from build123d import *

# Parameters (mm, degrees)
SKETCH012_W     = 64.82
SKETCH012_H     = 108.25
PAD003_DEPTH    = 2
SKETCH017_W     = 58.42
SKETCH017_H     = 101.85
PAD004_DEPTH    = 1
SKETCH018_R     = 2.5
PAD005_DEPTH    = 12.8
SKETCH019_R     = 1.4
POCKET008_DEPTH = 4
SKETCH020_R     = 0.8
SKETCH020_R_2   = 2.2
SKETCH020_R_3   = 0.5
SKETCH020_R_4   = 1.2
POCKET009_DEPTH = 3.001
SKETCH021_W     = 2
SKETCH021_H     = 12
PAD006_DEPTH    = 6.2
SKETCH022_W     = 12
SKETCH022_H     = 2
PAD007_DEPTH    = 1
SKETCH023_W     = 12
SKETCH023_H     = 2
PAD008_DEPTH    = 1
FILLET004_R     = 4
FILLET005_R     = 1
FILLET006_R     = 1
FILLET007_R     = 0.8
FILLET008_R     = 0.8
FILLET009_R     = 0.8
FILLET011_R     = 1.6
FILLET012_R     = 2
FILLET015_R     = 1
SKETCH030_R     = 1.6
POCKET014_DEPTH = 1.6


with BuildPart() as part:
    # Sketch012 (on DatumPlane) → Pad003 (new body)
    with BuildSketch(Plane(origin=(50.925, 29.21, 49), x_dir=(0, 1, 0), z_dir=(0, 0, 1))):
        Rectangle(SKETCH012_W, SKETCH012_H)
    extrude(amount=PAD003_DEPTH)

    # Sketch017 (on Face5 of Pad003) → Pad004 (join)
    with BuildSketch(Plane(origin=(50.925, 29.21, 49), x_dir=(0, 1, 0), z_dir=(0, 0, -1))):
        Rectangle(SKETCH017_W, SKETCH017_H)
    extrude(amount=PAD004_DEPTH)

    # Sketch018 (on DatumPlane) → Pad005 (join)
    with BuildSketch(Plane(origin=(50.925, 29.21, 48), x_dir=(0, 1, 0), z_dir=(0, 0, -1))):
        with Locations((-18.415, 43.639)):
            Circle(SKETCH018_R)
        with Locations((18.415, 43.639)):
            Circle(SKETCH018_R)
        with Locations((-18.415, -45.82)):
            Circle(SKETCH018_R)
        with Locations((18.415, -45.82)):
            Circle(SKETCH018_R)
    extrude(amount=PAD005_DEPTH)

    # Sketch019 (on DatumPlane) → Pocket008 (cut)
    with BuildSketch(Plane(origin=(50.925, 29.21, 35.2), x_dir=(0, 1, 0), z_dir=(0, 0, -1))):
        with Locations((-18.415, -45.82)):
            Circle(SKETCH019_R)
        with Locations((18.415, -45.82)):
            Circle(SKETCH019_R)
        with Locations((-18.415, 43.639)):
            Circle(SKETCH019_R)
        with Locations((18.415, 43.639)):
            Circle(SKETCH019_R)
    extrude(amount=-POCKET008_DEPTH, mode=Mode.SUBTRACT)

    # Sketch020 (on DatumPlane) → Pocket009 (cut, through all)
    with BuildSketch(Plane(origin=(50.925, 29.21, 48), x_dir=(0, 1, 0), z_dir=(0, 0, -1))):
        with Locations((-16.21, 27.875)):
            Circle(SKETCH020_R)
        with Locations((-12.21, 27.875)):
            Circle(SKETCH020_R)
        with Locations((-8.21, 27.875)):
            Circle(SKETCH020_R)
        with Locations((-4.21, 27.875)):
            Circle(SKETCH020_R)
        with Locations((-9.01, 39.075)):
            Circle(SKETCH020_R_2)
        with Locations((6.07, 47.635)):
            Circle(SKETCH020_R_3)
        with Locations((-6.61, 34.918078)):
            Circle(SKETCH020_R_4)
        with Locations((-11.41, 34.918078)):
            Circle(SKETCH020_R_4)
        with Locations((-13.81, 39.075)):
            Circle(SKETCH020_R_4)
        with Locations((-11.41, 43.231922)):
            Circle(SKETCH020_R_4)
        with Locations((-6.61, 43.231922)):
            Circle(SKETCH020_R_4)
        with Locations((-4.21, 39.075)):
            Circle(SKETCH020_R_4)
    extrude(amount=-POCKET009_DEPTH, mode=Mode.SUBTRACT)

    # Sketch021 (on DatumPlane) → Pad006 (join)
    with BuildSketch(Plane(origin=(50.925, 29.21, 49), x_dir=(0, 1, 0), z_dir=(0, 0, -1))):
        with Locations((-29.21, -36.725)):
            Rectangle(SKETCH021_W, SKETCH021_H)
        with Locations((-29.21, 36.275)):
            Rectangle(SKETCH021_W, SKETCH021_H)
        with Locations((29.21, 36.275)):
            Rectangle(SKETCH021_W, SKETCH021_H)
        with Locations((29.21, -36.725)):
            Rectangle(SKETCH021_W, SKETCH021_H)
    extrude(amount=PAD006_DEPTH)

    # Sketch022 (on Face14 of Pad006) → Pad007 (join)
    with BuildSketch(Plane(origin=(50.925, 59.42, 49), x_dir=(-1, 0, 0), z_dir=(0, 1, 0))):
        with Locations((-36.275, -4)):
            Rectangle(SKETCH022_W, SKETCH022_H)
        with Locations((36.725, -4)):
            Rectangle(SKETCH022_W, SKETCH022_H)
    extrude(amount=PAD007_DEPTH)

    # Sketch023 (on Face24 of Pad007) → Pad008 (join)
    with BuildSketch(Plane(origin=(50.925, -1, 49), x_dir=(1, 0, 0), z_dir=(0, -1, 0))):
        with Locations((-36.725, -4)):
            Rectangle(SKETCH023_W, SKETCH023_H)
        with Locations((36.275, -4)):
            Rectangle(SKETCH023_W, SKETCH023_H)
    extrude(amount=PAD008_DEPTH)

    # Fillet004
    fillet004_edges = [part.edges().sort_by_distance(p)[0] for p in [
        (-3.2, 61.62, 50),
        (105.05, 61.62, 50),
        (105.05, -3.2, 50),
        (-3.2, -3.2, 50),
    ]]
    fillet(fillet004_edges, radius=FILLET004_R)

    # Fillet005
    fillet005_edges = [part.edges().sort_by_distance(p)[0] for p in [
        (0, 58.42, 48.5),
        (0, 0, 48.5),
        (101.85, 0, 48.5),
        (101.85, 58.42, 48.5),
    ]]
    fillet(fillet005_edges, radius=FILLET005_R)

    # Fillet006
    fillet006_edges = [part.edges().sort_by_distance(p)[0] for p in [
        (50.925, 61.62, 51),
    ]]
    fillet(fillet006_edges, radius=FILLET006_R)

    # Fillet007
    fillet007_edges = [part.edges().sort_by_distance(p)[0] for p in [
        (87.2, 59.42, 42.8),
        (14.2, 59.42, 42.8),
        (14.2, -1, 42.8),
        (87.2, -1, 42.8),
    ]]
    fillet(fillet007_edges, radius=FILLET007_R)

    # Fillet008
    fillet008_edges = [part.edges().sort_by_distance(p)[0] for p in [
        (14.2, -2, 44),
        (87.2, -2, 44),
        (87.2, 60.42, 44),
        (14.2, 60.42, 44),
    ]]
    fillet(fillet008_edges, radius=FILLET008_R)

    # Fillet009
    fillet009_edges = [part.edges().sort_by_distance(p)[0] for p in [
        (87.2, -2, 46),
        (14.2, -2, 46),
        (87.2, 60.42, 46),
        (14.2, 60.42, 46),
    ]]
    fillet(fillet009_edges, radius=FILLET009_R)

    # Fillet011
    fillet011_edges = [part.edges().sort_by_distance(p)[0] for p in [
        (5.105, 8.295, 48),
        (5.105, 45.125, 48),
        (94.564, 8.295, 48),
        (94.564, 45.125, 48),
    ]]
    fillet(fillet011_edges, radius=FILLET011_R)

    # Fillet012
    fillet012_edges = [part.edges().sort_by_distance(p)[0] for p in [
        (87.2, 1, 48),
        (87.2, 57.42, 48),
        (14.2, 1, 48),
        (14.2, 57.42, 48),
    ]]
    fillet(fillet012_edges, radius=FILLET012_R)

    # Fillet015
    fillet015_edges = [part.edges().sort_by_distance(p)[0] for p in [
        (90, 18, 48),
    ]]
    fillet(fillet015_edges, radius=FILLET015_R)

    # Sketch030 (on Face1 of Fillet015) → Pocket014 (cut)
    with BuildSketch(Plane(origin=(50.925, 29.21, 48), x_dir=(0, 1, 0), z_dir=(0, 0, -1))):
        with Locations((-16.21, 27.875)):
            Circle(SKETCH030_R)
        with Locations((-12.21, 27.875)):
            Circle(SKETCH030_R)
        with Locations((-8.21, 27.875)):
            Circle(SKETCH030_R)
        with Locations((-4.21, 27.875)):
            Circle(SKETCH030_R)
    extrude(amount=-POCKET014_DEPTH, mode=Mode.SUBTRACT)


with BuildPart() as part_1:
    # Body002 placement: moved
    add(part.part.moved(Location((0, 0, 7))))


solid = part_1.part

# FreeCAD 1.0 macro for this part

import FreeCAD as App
import Part
import Sketcher


def edges_at(feature, points):
    """Names of the edges that pass closest to the given points."""
    edges = feature.Shape.Edges
    near = lambda p: min(range(len(edges)), key=lambda i: edges[i].distToShape(Part.Vertex(*p))[0])
    return sorted({f"Edge{near(p) + 1}" for p in points})

doc = App.newDocument("Part")
body = doc.addObject("PartDesign::Body", "Body")

# Sketch on XY plane
sketch1 = doc.addObject("Sketcher::SketchObject", "Sketch")
body.addObject(sketch1)
sketch1.AttachmentSupport = (doc.XY_Plane, [""])
sketch1.MapMode = "FlatFace"
sketch1.AttachmentOffset = App.Placement(App.Vector(0, 0, 49), App.Rotation())
sketch1.addGeometry([
    Part.LineSegment(App.Vector(-3, -3, 0), App.Vector(105, -3, 0)),
    Part.LineSegment(App.Vector(105, -3, 0), App.Vector(105, 62, 0)),
    Part.LineSegment(App.Vector(105, 62, 0), App.Vector(-3, 62, 0)),
    Part.LineSegment(App.Vector(-3, 62, 0), App.Vector(-3, -3, 0)),
], False)
sketch1.addConstraint([
    Sketcher.Constraint("Coincident", 0, 2, 1, 1),
    Sketcher.Constraint("Coincident", 1, 2, 2, 1),
    Sketcher.Constraint("Coincident", 2, 2, 3, 1),
    Sketcher.Constraint("Coincident", 3, 2, 0, 1),
    Sketcher.Constraint("Horizontal", 0),
    Sketcher.Constraint("Vertical", 1),
    Sketcher.Constraint("Horizontal", 2),
    Sketcher.Constraint("Vertical", 3),
    Sketcher.Constraint("DistanceX", 0, 1, 0, 2, 108.25),
    Sketcher.Constraint("DistanceY", 1, 1, 1, 2, 64.82),
    Sketcher.Constraint("DistanceY", 0, 2, -1, 1, 3.2),
    Sketcher.Constraint("DistanceX", 2, 2, -1, 1, 3.2),
])
pad1 = doc.addObject("PartDesign::Pad", "Pad")
body.addObject(pad1)
pad1.Profile = sketch1
pad1.Length = 2

# Sketch on XY plane
sketch2 = doc.addObject("Sketcher::SketchObject", "Sketch001")
body.addObject(sketch2)
sketch2.AttachmentSupport = (doc.XY_Plane, [""])
sketch2.MapMode = "FlatFace"
sketch2.AttachmentOffset = App.Placement(App.Vector(0, 0, 49), App.Rotation())
sketch2.addGeometry([
    Part.LineSegment(App.Vector(102, 0, 0), App.Vector(0, 0, 0)),
    Part.LineSegment(App.Vector(0, 0, 0), App.Vector(0, 58, 0)),
    Part.LineSegment(App.Vector(0, 58, 0), App.Vector(102, 58, 0)),
    Part.LineSegment(App.Vector(102, 58, 0), App.Vector(102, 0, 0)),
], False)
sketch2.addConstraint([
    Sketcher.Constraint("Coincident", 0, 2, 1, 1),
    Sketcher.Constraint("Coincident", 1, 2, 2, 1),
    Sketcher.Constraint("Coincident", 2, 2, 3, 1),
    Sketcher.Constraint("Coincident", 3, 2, 0, 1),
    Sketcher.Constraint("Horizontal", 0),
    Sketcher.Constraint("Vertical", 1),
    Sketcher.Constraint("Horizontal", 2),
    Sketcher.Constraint("Vertical", 3),
    Sketcher.Constraint("Coincident", 0, 2, -1, 1),
    Sketcher.Constraint("DistanceX", 0, 2, 0, 1, 101.85),
    Sketcher.Constraint("DistanceY", 1, 1, 1, 2, 58.42),
])
pad2 = doc.addObject("PartDesign::Pad", "Pad001")
body.addObject(pad2)
pad2.Profile = sketch2
pad2.Length = 1
pad2.Reversed = True

# Sketch on XY plane
sketch3 = doc.addObject("Sketcher::SketchObject", "Sketch002")
body.addObject(sketch3)
sketch3.AttachmentSupport = (doc.XY_Plane, [""])
sketch3.MapMode = "FlatFace"
sketch3.AttachmentOffset = App.Placement(App.Vector(0, 0, 48), App.Rotation())
sketch3.addGeometry([
    Part.Circle(App.Vector(94.6, 10.8, 0), App.Vector(0, 0, 1), 2.5),
    Part.Circle(App.Vector(94.6, 47.6, 0), App.Vector(0, 0, 1), 2.5),
    Part.Circle(App.Vector(5.1, 10.8, 0), App.Vector(0, 0, 1), 2.5),
    Part.Circle(App.Vector(5.1, 47.6, 0), App.Vector(0, 0, 1), 2.5),
], False)
sketch3.addConstraint([
    Sketcher.Constraint("Equal", 0, 1),
    Sketcher.Constraint("Equal", 1, 2),
    Sketcher.Constraint("Equal", 2, 3),
    Sketcher.Constraint("Horizontal", 0, 3, 2, 3),
    Sketcher.Constraint("Horizontal", 1, 3, 3, 3),
    Sketcher.Constraint("Vertical", 0, 3, 1, 3),
    Sketcher.Constraint("Vertical", 2, 3, 3, 3),
    Sketcher.Constraint("Diameter", 0, 5.0),
    Sketcher.Constraint("DistanceY", 0, 3, 1, 3, 36.83),
    Sketcher.Constraint("DistanceX", -1, 1, 0, 3, 94.564),
    Sketcher.Constraint("DistanceY", -1, 1, 0, 3, 10.795),
    Sketcher.Constraint("DistanceX", -1, 1, 2, 3, 5.105),
])
pad3 = doc.addObject("PartDesign::Pad", "Pad002")
body.addObject(pad3)
pad3.Profile = sketch3
pad3.Length = 12.8
pad3.Reversed = True

# Sketch on XY plane
sketch4 = doc.addObject("Sketcher::SketchObject", "Sketch003")
body.addObject(sketch4)
sketch4.AttachmentSupport = (doc.XY_Plane, [""])
sketch4.MapMode = "FlatFace"
sketch4.AttachmentOffset = App.Placement(App.Vector(0, 0, 35.2), App.Rotation())
sketch4.addGeometry([
    Part.Circle(App.Vector(5.1, 10.8, 0), App.Vector(0, 0, 1), 1.4),
    Part.Circle(App.Vector(5.1, 47.6, 0), App.Vector(0, 0, 1), 1.4),
    Part.Circle(App.Vector(94.6, 10.8, 0), App.Vector(0, 0, 1), 1.4),
    Part.Circle(App.Vector(94.6, 47.6, 0), App.Vector(0, 0, 1), 1.4),
], False)
sketch4.addConstraint([
    Sketcher.Constraint("Equal", 0, 1),
    Sketcher.Constraint("Equal", 1, 2),
    Sketcher.Constraint("Equal", 2, 3),
    Sketcher.Constraint("Horizontal", 0, 3, 2, 3),
    Sketcher.Constraint("Horizontal", 1, 3, 3, 3),
    Sketcher.Constraint("Vertical", 0, 3, 1, 3),
    Sketcher.Constraint("Vertical", 2, 3, 3, 3),
    Sketcher.Constraint("Diameter", 0, 2.8),
    Sketcher.Constraint("DistanceY", 0, 3, 1, 3, 36.83),
    Sketcher.Constraint("DistanceX", -1, 1, 0, 3, 5.105),
    Sketcher.Constraint("DistanceY", -1, 1, 0, 3, 10.795),
    Sketcher.Constraint("DistanceX", -1, 1, 2, 3, 94.564),
])
pocket1 = doc.addObject("PartDesign::Pocket", "Pocket")
body.addObject(pocket1)
pocket1.Profile = sketch4
pocket1.Length = 4
pocket1.Reversed = True

# Sketch on XY plane
sketch5 = doc.addObject("Sketcher::SketchObject", "Sketch004")
body.addObject(sketch5)
sketch5.AttachmentSupport = (doc.XY_Plane, [""])
sketch5.MapMode = "FlatFace"
sketch5.AttachmentOffset = App.Placement(App.Vector(0, 0, 48), App.Rotation())
sketch5.addGeometry([
    Part.Circle(App.Vector(78.8, 13, 0), App.Vector(0, 0, 1), 0.8),  # 0
    Part.Circle(App.Vector(78.8, 17, 0), App.Vector(0, 0, 1), 0.8),  # 1
    Part.Circle(App.Vector(78.8, 21, 0), App.Vector(0, 0, 1), 0.8),  # 2
    Part.Circle(App.Vector(78.8, 25, 0), App.Vector(0, 0, 1), 0.8),  # 3
    Part.Circle(App.Vector(90, 20.2, 0), App.Vector(0, 0, 1), 2.2),  # 4
    Part.Circle(App.Vector(98.6, 35.3, 0), App.Vector(0, 0, 1), 0.5),  # 5
    Part.Circle(App.Vector(85.8, 22.6, 0), App.Vector(0, 0, 1), 1.2),  # 6
    Part.Circle(App.Vector(85.8, 17.8, 0), App.Vector(0, 0, 1), 1.2),  # 7
    Part.Circle(App.Vector(90, 15.4, 0), App.Vector(0, 0, 1), 1.2),  # 8
    Part.Circle(App.Vector(94.2, 17.8, 0), App.Vector(0, 0, 1), 1.2),  # 9
    Part.Circle(App.Vector(94.2, 22.6, 0), App.Vector(0, 0, 1), 1.2),  # 10
    Part.Circle(App.Vector(90, 25, 0), App.Vector(0, 0, 1), 1.2),  # 11
], False)
sketch5.addConstraint([
    Sketcher.Constraint("Equal", 0, 1),
    Sketcher.Constraint("Equal", 1, 2),
    Sketcher.Constraint("Equal", 2, 3),
    Sketcher.Constraint("Equal", 6, 7),
    Sketcher.Constraint("Equal", 7, 8),
    Sketcher.Constraint("Equal", 8, 9),
    Sketcher.Constraint("Equal", 9, 10),
    Sketcher.Constraint("Equal", 10, 11),
    Sketcher.Constraint("Horizontal", 7, 3, 9, 3),
    Sketcher.Constraint("Horizontal", 6, 3, 10, 3),
    Sketcher.Constraint("Horizontal", 3, 3, 11, 3),
    Sketcher.Constraint("Vertical", 0, 3, 1, 3),
    Sketcher.Constraint("Vertical", 1, 3, 2, 3),
    Sketcher.Constraint("Vertical", 2, 3, 3, 3),
    Sketcher.Constraint("Vertical", 6, 3, 7, 3),
    Sketcher.Constraint("Vertical", 4, 3, 8, 3),
    Sketcher.Constraint("Vertical", 9, 3, 10, 3),
    Sketcher.Constraint("Vertical", 8, 3, 11, 3),
    Sketcher.Constraint("Diameter", 5, 1.0),
    Sketcher.Constraint("Diameter", 0, 1.6),
    Sketcher.Constraint("Diameter", 4, 4.4),
    Sketcher.Constraint("Diameter", 6, 2.4),
    Sketcher.Constraint("DistanceY", -1, 1, 0, 3, 13.0),
    Sketcher.Constraint("DistanceY", -1, 1, 1, 3, 17.0),
    Sketcher.Constraint("DistanceY", -1, 1, 2, 3, 21.0),
    Sketcher.Constraint("DistanceY", -1, 1, 3, 3, 25.0),
    Sketcher.Constraint("DistanceX", -1, 1, 4, 3, 90.0),
    Sketcher.Constraint("DistanceX", -1, 1, 0, 3, 78.8),
    Sketcher.Constraint("DistanceY", -1, 1, 4, 3, 20.2),
    Sketcher.Constraint("DistanceY", -1, 1, 6, 3, 22.6),
    Sketcher.Constraint("DistanceY", -1, 1, 7, 3, 17.8),
    Sketcher.Constraint("DistanceY", -1, 1, 8, 3, 15.4),
    Sketcher.Constraint("DistanceX", -1, 1, 5, 3, 98.56),
    Sketcher.Constraint("DistanceY", -1, 1, 5, 3, 35.28),
    Sketcher.Constraint("DistanceX", -1, 1, 6, 3, 85.843078),
    Sketcher.Constraint("DistanceX", -1, 1, 9, 3, 94.156922),
])
pocket2 = doc.addObject("PartDesign::Pocket", "Pocket001")
body.addObject(pocket2)
pocket2.Profile = sketch5
pocket2.Type = "ThroughAll"
pocket2.Reversed = True

# Sketch on XY plane
sketch6 = doc.addObject("Sketcher::SketchObject", "Sketch005")
body.addObject(sketch6)
sketch6.AttachmentSupport = (doc.XY_Plane, [""])
sketch6.MapMode = "FlatFace"
sketch6.AttachmentOffset = App.Placement(App.Vector(0, 0, 49), App.Rotation())
sketch6.addGeometry([
    Part.LineSegment(App.Vector(20.2, -1, 0), App.Vector(8.2, -1, 0)),  # 0
    Part.LineSegment(App.Vector(8.2, -1, 0), App.Vector(8.2, 1, 0)),  # 1
    Part.LineSegment(App.Vector(8.2, 1, 0), App.Vector(20.2, 1, 0)),  # 2
    Part.LineSegment(App.Vector(20.2, 1, 0), App.Vector(20.2, -1, 0)),  # 3
    Part.LineSegment(App.Vector(93.2, -1, 0), App.Vector(81.2, -1, 0)),  # 4
    Part.LineSegment(App.Vector(81.2, -1, 0), App.Vector(81.2, 1, 0)),  # 5
    Part.LineSegment(App.Vector(81.2, 1, 0), App.Vector(93.2, 1, 0)),  # 6
    Part.LineSegment(App.Vector(93.2, 1, 0), App.Vector(93.2, -1, 0)),  # 7
    Part.LineSegment(App.Vector(93.2, 57.4, 0), App.Vector(81.2, 57.4, 0)),  # 8
    Part.LineSegment(App.Vector(81.2, 57.4, 0), App.Vector(81.2, 59.4, 0)),  # 9
    Part.LineSegment(App.Vector(81.2, 59.4, 0), App.Vector(93.2, 59.4, 0)),  # 10
    Part.LineSegment(App.Vector(93.2, 59.4, 0), App.Vector(93.2, 57.4, 0)),  # 11
    Part.LineSegment(App.Vector(20.2, 57.4, 0), App.Vector(8.2, 57.4, 0)),  # 12
    Part.LineSegment(App.Vector(8.2, 57.4, 0), App.Vector(8.2, 59.4, 0)),  # 13
    Part.LineSegment(App.Vector(8.2, 59.4, 0), App.Vector(20.2, 59.4, 0)),  # 14
    Part.LineSegment(App.Vector(20.2, 59.4, 0), App.Vector(20.2, 57.4, 0)),  # 15
], False)
sketch6.addConstraint([
    Sketcher.Constraint("Coincident", 0, 2, 1, 1),
    Sketcher.Constraint("Coincident", 1, 2, 2, 1),
    Sketcher.Constraint("Coincident", 2, 2, 3, 1),
    Sketcher.Constraint("Coincident", 3, 2, 0, 1),
    Sketcher.Constraint("Coincident", 4, 2, 5, 1),
    Sketcher.Constraint("Coincident", 5, 2, 6, 1),
    Sketcher.Constraint("Coincident", 6, 2, 7, 1),
    Sketcher.Constraint("Coincident", 7, 2, 4, 1),
    Sketcher.Constraint("Coincident", 8, 2, 9, 1),
    Sketcher.Constraint("Coincident", 9, 2, 10, 1),
    Sketcher.Constraint("Coincident", 10, 2, 11, 1),
    Sketcher.Constraint("Coincident", 11, 2, 8, 1),
    Sketcher.Constraint("Coincident", 12, 2, 13, 1),
    Sketcher.Constraint("Coincident", 13, 2, 14, 1),
    Sketcher.Constraint("Coincident", 14, 2, 15, 1),
    Sketcher.Constraint("Coincident", 15, 2, 12, 1),
    Sketcher.Constraint("Horizontal", 0),
    Sketcher.Constraint("Vertical", 1),
    Sketcher.Constraint("Horizontal", 2),
    Sketcher.Constraint("Vertical", 3),
    Sketcher.Constraint("Horizontal", 4),
    Sketcher.Constraint("Vertical", 5),
    Sketcher.Constraint("Horizontal", 6),
    Sketcher.Constraint("Vertical", 7),
    Sketcher.Constraint("Horizontal", 8),
    Sketcher.Constraint("Vertical", 9),
    Sketcher.Constraint("Horizontal", 10),
    Sketcher.Constraint("Vertical", 11),
    Sketcher.Constraint("Horizontal", 12),
    Sketcher.Constraint("Vertical", 13),
    Sketcher.Constraint("Horizontal", 14),
    Sketcher.Constraint("Vertical", 15),
    Sketcher.Constraint("Horizontal", 3, 2, 4, 2),
    Sketcher.Constraint("Horizontal", 2, 2, 5, 2),
    Sketcher.Constraint("Horizontal", 11, 2, 12, 2),
    Sketcher.Constraint("Horizontal", 10, 2, 13, 2),
    Sketcher.Constraint("Vertical", 5, 2, 8, 2),
    Sketcher.Constraint("Vertical", 7, 2, 10, 2),
    Sketcher.Constraint("Vertical", 1, 2, 12, 2),
    Sketcher.Constraint("Vertical", 3, 2, 14, 2),
    Sketcher.Constraint("Equal", 2, 4),
    Sketcher.Constraint("Equal", 7, 9),
    Sketcher.Constraint("DistanceX", 0, 2, 0, 1, 12.0),
    Sketcher.Constraint("DistanceY", 1, 1, 1, 2, 2.0),
    Sketcher.Constraint("DistanceY", 0, 2, -1, 1, 1.0),
    Sketcher.Constraint("DistanceX", 3, 2, 4, 2, 61.0),
    Sketcher.Constraint("DistanceX", -1, 1, 0, 2, 8.2),
    Sketcher.Constraint("DistanceY", -1, 1, 8, 2, 57.42),
])
pad4 = doc.addObject("PartDesign::Pad", "Pad003")
body.addObject(pad4)
pad4.Profile = sketch6
pad4.Length = 6.2
pad4.Reversed = True

# Sketch on XZ plane
sketch7 = doc.addObject("Sketcher::SketchObject", "Sketch006")
body.addObject(sketch7)
sketch7.AttachmentSupport = (doc.XZ_Plane, [""])
sketch7.MapMode = "FlatFace"
sketch7.AttachmentOffset = App.Placement(App.Vector(0, 0, -59.42), App.Rotation())
sketch7.addGeometry([
    Part.LineSegment(App.Vector(93.2, 46, 0), App.Vector(93.2, 44, 0)),  # 0
    Part.LineSegment(App.Vector(93.2, 44, 0), App.Vector(81.2, 44, 0)),  # 1
    Part.LineSegment(App.Vector(81.2, 44, 0), App.Vector(81.2, 46, 0)),  # 2
    Part.LineSegment(App.Vector(81.2, 46, 0), App.Vector(93.2, 46, 0)),  # 3
    Part.LineSegment(App.Vector(20.2, 46, 0), App.Vector(20.2, 44, 0)),  # 4
    Part.LineSegment(App.Vector(20.2, 44, 0), App.Vector(8.2, 44, 0)),  # 5
    Part.LineSegment(App.Vector(8.2, 44, 0), App.Vector(8.2, 46, 0)),  # 6
    Part.LineSegment(App.Vector(8.2, 46, 0), App.Vector(20.2, 46, 0)),  # 7
], False)
sketch7.addConstraint([
    Sketcher.Constraint("Coincident", 0, 2, 1, 1),
    Sketcher.Constraint("Coincident", 1, 2, 2, 1),
    Sketcher.Constraint("Coincident", 2, 2, 3, 1),
    Sketcher.Constraint("Coincident", 3, 2, 0, 1),
    Sketcher.Constraint("Coincident", 4, 2, 5, 1),
    Sketcher.Constraint("Coincident", 5, 2, 6, 1),
    Sketcher.Constraint("Coincident", 6, 2, 7, 1),
    Sketcher.Constraint("Coincident", 7, 2, 4, 1),
    Sketcher.Constraint("Vertical", 0),
    Sketcher.Constraint("Horizontal", 1),
    Sketcher.Constraint("Vertical", 2),
    Sketcher.Constraint("Horizontal", 3),
    Sketcher.Constraint("Vertical", 4),
    Sketcher.Constraint("Horizontal", 5),
    Sketcher.Constraint("Vertical", 6),
    Sketcher.Constraint("Horizontal", 7),
    Sketcher.Constraint("Horizontal", 1, 2, 4, 2),
    Sketcher.Constraint("Horizontal", 3, 2, 6, 2),
    Sketcher.Constraint("Equal", 3, 5),
    Sketcher.Constraint("DistanceX", 1, 2, 1, 1, 12.0),
    Sketcher.Constraint("DistanceY", 0, 2, 0, 1, 2.0),
    Sketcher.Constraint("DistanceY", -1, 1, 0, 2, 44.0),
    Sketcher.Constraint("DistanceX", 4, 2, 1, 2, 61.0),
    Sketcher.Constraint("DistanceX", -1, 1, 0, 2, 93.2),
])
pad5 = doc.addObject("PartDesign::Pad", "Pad004")
body.addObject(pad5)
pad5.Profile = sketch7
pad5.Length = 1
pad5.Reversed = True

# Sketch on XZ plane
sketch8 = doc.addObject("Sketcher::SketchObject", "Sketch007")
body.addObject(sketch8)
sketch8.AttachmentSupport = (doc.XZ_Plane, [""])
sketch8.MapMode = "FlatFace"
sketch8.AttachmentOffset = App.Placement(App.Vector(0, 0, 1), App.Rotation())
sketch8.addGeometry([
    Part.LineSegment(App.Vector(8.2, 46, 0), App.Vector(8.2, 44, 0)),  # 0
    Part.LineSegment(App.Vector(8.2, 44, 0), App.Vector(20.2, 44, 0)),  # 1
    Part.LineSegment(App.Vector(20.2, 44, 0), App.Vector(20.2, 46, 0)),  # 2
    Part.LineSegment(App.Vector(20.2, 46, 0), App.Vector(8.2, 46, 0)),  # 3
    Part.LineSegment(App.Vector(81.2, 46, 0), App.Vector(81.2, 44, 0)),  # 4
    Part.LineSegment(App.Vector(81.2, 44, 0), App.Vector(93.2, 44, 0)),  # 5
    Part.LineSegment(App.Vector(93.2, 44, 0), App.Vector(93.2, 46, 0)),  # 6
    Part.LineSegment(App.Vector(93.2, 46, 0), App.Vector(81.2, 46, 0)),  # 7
], False)
sketch8.addConstraint([
    Sketcher.Constraint("Coincident", 0, 2, 1, 1),
    Sketcher.Constraint("Coincident", 1, 2, 2, 1),
    Sketcher.Constraint("Coincident", 2, 2, 3, 1),
    Sketcher.Constraint("Coincident", 3, 2, 0, 1),
    Sketcher.Constraint("Coincident", 4, 2, 5, 1),
    Sketcher.Constraint("Coincident", 5, 2, 6, 1),
    Sketcher.Constraint("Coincident", 6, 2, 7, 1),
    Sketcher.Constraint("Coincident", 7, 2, 4, 1),
    Sketcher.Constraint("Vertical", 0),
    Sketcher.Constraint("Horizontal", 1),
    Sketcher.Constraint("Vertical", 2),
    Sketcher.Constraint("Horizontal", 3),
    Sketcher.Constraint("Vertical", 4),
    Sketcher.Constraint("Horizontal", 5),
    Sketcher.Constraint("Vertical", 6),
    Sketcher.Constraint("Horizontal", 7),
    Sketcher.Constraint("Horizontal", 1, 2, 4, 2),
    Sketcher.Constraint("Horizontal", 3, 2, 6, 2),
    Sketcher.Constraint("Equal", 3, 5),
    Sketcher.Constraint("DistanceX", 1, 1, 1, 2, 12.0),
    Sketcher.Constraint("DistanceY", 0, 2, 0, 1, 2.0),
    Sketcher.Constraint("DistanceY", -1, 1, 0, 2, 44.0),
    Sketcher.Constraint("DistanceX", 1, 2, 4, 2, 61.0),
    Sketcher.Constraint("DistanceX", -1, 1, 0, 2, 8.2),
])
pad6 = doc.addObject("PartDesign::Pad", "Pad005")
body.addObject(pad6)
pad6.Profile = sketch8
pad6.Length = 1
doc.recompute()

fillet = doc.addObject("PartDesign::Fillet", "Fillet")
body.addObject(fillet)
fillet.Base = (pad6, edges_at(pad6, [
    (-3.2, 61.62, 50),
    (105.05, 61.62, 50),
    (105.05, -3.2, 50),
    (-3.2, -3.2, 50),
]))
fillet.Radius = 4
doc.recompute()

fillet2 = doc.addObject("PartDesign::Fillet", "Fillet001")
body.addObject(fillet2)
fillet2.Base = (fillet, edges_at(fillet, [
    (0, 58.42, 48.5),
    (0, 0, 48.5),
    (101.85, 0, 48.5),
    (101.85, 58.42, 48.5),
]))
fillet2.Radius = 1
doc.recompute()

fillet3 = doc.addObject("PartDesign::Fillet", "Fillet002")
body.addObject(fillet3)
fillet3.Base = (fillet2, edges_at(fillet2, [(50.925, 61.62, 51)]))
fillet3.Radius = 1
doc.recompute()

fillet4 = doc.addObject("PartDesign::Fillet", "Fillet003")
body.addObject(fillet4)
fillet4.Base = (fillet3, edges_at(fillet3, [
    (87.2, 59.42, 42.8),
    (14.2, 59.42, 42.8),
    (14.2, -1, 42.8),
    (87.2, -1, 42.8),
]))
fillet4.Radius = 0.8
doc.recompute()

fillet5 = doc.addObject("PartDesign::Fillet", "Fillet004")
body.addObject(fillet5)
fillet5.Base = (fillet4, edges_at(fillet4, [
    (14.2, -2, 44),
    (87.2, -2, 44),
    (87.2, 60.42, 44),
    (14.2, 60.42, 44),
]))
fillet5.Radius = 0.8
doc.recompute()

fillet6 = doc.addObject("PartDesign::Fillet", "Fillet005")
body.addObject(fillet6)
fillet6.Base = (fillet5, edges_at(fillet5, [
    (87.2, -2, 46),
    (14.2, -2, 46),
    (87.2, 60.42, 46),
    (14.2, 60.42, 46),
]))
fillet6.Radius = 0.8
doc.recompute()

fillet7 = doc.addObject("PartDesign::Fillet", "Fillet006")
body.addObject(fillet7)
fillet7.Base = (fillet6, edges_at(fillet6, [
    (5.105, 8.295, 48),
    (5.105, 45.125, 48),
    (94.564, 8.295, 48),
    (94.564, 45.125, 48),
]))
fillet7.Radius = 1.6
doc.recompute()

fillet8 = doc.addObject("PartDesign::Fillet", "Fillet007")
body.addObject(fillet8)
fillet8.Base = (fillet7, edges_at(fillet7, [
    (87.2, 1, 48),
    (87.2, 57.42, 48),
    (14.2, 1, 48),
    (14.2, 57.42, 48),
]))
fillet8.Radius = 2
doc.recompute()

fillet9 = doc.addObject("PartDesign::Fillet", "Fillet008")
body.addObject(fillet9)
fillet9.Base = (fillet8, edges_at(fillet8, [(90, 18, 48)]))
fillet9.Radius = 1

# Sketch on XY plane
sketch9 = doc.addObject("Sketcher::SketchObject", "Sketch008")
body.addObject(sketch9)
sketch9.AttachmentSupport = (doc.XY_Plane, [""])
sketch9.MapMode = "FlatFace"
sketch9.AttachmentOffset = App.Placement(App.Vector(0, 0, 48), App.Rotation())
sketch9.addGeometry([
    Part.Circle(App.Vector(78.8, 13, 0), App.Vector(0, 0, 1), 1.6),
    Part.Circle(App.Vector(78.8, 17, 0), App.Vector(0, 0, 1), 1.6),
    Part.Circle(App.Vector(78.8, 21, 0), App.Vector(0, 0, 1), 1.6),
    Part.Circle(App.Vector(78.8, 25, 0), App.Vector(0, 0, 1), 1.6),
], False)
sketch9.addConstraint([
    Sketcher.Constraint("Equal", 0, 1),
    Sketcher.Constraint("Equal", 1, 2),
    Sketcher.Constraint("Equal", 2, 3),
    Sketcher.Constraint("Vertical", 0, 3, 1, 3),
    Sketcher.Constraint("Vertical", 1, 3, 2, 3),
    Sketcher.Constraint("Vertical", 2, 3, 3, 3),
    Sketcher.Constraint("Diameter", 0, 3.2),
    Sketcher.Constraint("DistanceY", -1, 1, 0, 3, 13.0),
    Sketcher.Constraint("DistanceY", -1, 1, 1, 3, 17.0),
    Sketcher.Constraint("DistanceY", -1, 1, 2, 3, 21.0),
    Sketcher.Constraint("DistanceY", -1, 1, 3, 3, 25.0),
    Sketcher.Constraint("DistanceX", -1, 1, 0, 3, 78.8),
])
pocket3 = doc.addObject("PartDesign::Pocket", "Pocket002")
body.addObject(pocket3)
pocket3.Profile = sketch9
pocket3.Length = 1.6
pocket3.Reversed = True
body2 = doc.addObject("PartDesign::Body", "Body001")
doc.recompute()

body.Placement = App.Placement(App.Vector(0, 0, 7), App.Rotation(App.Vector(0, 0, 1), 0))
boolean = doc.addObject("PartDesign::Boolean", "Boolean")
body2.addObject(boolean)
boolean.Type = "Fuse"
boolean.addObjects([body])

doc.recompute()
